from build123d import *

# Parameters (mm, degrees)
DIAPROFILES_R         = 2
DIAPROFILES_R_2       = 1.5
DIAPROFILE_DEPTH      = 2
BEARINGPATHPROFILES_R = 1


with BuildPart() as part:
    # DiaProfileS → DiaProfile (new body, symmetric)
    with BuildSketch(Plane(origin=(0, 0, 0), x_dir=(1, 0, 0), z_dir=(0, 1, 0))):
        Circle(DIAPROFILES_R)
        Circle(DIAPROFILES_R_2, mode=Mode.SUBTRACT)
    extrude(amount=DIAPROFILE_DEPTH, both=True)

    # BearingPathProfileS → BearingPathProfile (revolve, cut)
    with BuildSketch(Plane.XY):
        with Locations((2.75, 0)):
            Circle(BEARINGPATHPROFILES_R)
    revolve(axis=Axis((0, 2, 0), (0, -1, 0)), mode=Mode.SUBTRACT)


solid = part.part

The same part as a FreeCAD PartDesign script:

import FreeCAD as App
import Part
import Sketcher

doc = App.newDocument("Part")
params = doc.addObject("Spreadsheet::Sheet", "Params")
for row, (alias, value) in enumerate([
    ("sketch1_diameter", "4 mm"),
    ("sketch1_diameter2", "3 mm"),
    ("pad1_length", "4 mm"),
    ("sketch2_diameter", "2 mm"),
    ("groove_angle", "360 deg"),
], start=1):
    params.set(f"A{row}", alias)
    params.set(f"B{row}", "=" + value)
    params.setAlias(f"B{row}", alias)

body = doc.addObject("PartDesign::Body", "Body")

sketch1 = doc.addObject("Sketcher::SketchObject", "Sketch")
body.addObject(sketch1)
sketch1.AttachmentSupport = (doc.XZ_Plane, [""])
sketch1.MapMode = "FlatFace"
sketch1.addGeometry([
    Part.Circle(App.Vector(0, 0, 0), App.Vector(0, 0, 1), 2),
    Part.Circle(App.Vector(0, 0, 0), App.Vector(0, 0, 1), 1.5),
], False)
sketch1.addConstraint([
    Sketcher.Constraint("Coincident", 0, 3, -1, 1),
    Sketcher.Constraint("Coincident", 1, 3, -1, 1),
    Sketcher.Constraint("Diameter", 0, 4.0),
    Sketcher.Constraint("Diameter", 1, 3.0),
])
sketch1.setExpression("Constraints[2]", "Params.sketch1_diameter")
sketch1.setExpression("Constraints[3]", "Params.sketch1_diameter2")
pad1 = doc.addObject("PartDesign::Pad", "Pad")
body.addObject(pad1)
pad1.Profile = sketch1
pad1.setExpression("Length", "Params.pad1_length")
pad1.Midplane = True

sketch2 = doc.addObject("Sketcher::SketchObject", "Sketch001")
body.addObject(sketch2)
sketch2.AttachmentSupport = (doc.XY_Plane, [""])
sketch2.MapMode = "FlatFace"
sketch2.addGeometry(Part.Circle(App.Vector(2.8, 0, 0), App.Vector(0, 0, 1), 1), False)
sketch2.addConstraint([
    Sketcher.Constraint("PointOnObject", 0, 3, -1),
    Sketcher.Constraint("Diameter", 0, 2.0),
    Sketcher.Constraint("DistanceX", -1, 1, 0, 3, 2.75),
])
sketch2.setExpression("Constraints[1]", "Params.sketch2_diameter")
groove = doc.addObject("PartDesign::Groove", "Groove")
body.addObject(groove)
groove.Profile = sketch2
groove.ReferenceAxis = (sketch2, ["V_Axis"])
groove.setExpression("Angle", "Params.groove_angle")

doc.recompute()
